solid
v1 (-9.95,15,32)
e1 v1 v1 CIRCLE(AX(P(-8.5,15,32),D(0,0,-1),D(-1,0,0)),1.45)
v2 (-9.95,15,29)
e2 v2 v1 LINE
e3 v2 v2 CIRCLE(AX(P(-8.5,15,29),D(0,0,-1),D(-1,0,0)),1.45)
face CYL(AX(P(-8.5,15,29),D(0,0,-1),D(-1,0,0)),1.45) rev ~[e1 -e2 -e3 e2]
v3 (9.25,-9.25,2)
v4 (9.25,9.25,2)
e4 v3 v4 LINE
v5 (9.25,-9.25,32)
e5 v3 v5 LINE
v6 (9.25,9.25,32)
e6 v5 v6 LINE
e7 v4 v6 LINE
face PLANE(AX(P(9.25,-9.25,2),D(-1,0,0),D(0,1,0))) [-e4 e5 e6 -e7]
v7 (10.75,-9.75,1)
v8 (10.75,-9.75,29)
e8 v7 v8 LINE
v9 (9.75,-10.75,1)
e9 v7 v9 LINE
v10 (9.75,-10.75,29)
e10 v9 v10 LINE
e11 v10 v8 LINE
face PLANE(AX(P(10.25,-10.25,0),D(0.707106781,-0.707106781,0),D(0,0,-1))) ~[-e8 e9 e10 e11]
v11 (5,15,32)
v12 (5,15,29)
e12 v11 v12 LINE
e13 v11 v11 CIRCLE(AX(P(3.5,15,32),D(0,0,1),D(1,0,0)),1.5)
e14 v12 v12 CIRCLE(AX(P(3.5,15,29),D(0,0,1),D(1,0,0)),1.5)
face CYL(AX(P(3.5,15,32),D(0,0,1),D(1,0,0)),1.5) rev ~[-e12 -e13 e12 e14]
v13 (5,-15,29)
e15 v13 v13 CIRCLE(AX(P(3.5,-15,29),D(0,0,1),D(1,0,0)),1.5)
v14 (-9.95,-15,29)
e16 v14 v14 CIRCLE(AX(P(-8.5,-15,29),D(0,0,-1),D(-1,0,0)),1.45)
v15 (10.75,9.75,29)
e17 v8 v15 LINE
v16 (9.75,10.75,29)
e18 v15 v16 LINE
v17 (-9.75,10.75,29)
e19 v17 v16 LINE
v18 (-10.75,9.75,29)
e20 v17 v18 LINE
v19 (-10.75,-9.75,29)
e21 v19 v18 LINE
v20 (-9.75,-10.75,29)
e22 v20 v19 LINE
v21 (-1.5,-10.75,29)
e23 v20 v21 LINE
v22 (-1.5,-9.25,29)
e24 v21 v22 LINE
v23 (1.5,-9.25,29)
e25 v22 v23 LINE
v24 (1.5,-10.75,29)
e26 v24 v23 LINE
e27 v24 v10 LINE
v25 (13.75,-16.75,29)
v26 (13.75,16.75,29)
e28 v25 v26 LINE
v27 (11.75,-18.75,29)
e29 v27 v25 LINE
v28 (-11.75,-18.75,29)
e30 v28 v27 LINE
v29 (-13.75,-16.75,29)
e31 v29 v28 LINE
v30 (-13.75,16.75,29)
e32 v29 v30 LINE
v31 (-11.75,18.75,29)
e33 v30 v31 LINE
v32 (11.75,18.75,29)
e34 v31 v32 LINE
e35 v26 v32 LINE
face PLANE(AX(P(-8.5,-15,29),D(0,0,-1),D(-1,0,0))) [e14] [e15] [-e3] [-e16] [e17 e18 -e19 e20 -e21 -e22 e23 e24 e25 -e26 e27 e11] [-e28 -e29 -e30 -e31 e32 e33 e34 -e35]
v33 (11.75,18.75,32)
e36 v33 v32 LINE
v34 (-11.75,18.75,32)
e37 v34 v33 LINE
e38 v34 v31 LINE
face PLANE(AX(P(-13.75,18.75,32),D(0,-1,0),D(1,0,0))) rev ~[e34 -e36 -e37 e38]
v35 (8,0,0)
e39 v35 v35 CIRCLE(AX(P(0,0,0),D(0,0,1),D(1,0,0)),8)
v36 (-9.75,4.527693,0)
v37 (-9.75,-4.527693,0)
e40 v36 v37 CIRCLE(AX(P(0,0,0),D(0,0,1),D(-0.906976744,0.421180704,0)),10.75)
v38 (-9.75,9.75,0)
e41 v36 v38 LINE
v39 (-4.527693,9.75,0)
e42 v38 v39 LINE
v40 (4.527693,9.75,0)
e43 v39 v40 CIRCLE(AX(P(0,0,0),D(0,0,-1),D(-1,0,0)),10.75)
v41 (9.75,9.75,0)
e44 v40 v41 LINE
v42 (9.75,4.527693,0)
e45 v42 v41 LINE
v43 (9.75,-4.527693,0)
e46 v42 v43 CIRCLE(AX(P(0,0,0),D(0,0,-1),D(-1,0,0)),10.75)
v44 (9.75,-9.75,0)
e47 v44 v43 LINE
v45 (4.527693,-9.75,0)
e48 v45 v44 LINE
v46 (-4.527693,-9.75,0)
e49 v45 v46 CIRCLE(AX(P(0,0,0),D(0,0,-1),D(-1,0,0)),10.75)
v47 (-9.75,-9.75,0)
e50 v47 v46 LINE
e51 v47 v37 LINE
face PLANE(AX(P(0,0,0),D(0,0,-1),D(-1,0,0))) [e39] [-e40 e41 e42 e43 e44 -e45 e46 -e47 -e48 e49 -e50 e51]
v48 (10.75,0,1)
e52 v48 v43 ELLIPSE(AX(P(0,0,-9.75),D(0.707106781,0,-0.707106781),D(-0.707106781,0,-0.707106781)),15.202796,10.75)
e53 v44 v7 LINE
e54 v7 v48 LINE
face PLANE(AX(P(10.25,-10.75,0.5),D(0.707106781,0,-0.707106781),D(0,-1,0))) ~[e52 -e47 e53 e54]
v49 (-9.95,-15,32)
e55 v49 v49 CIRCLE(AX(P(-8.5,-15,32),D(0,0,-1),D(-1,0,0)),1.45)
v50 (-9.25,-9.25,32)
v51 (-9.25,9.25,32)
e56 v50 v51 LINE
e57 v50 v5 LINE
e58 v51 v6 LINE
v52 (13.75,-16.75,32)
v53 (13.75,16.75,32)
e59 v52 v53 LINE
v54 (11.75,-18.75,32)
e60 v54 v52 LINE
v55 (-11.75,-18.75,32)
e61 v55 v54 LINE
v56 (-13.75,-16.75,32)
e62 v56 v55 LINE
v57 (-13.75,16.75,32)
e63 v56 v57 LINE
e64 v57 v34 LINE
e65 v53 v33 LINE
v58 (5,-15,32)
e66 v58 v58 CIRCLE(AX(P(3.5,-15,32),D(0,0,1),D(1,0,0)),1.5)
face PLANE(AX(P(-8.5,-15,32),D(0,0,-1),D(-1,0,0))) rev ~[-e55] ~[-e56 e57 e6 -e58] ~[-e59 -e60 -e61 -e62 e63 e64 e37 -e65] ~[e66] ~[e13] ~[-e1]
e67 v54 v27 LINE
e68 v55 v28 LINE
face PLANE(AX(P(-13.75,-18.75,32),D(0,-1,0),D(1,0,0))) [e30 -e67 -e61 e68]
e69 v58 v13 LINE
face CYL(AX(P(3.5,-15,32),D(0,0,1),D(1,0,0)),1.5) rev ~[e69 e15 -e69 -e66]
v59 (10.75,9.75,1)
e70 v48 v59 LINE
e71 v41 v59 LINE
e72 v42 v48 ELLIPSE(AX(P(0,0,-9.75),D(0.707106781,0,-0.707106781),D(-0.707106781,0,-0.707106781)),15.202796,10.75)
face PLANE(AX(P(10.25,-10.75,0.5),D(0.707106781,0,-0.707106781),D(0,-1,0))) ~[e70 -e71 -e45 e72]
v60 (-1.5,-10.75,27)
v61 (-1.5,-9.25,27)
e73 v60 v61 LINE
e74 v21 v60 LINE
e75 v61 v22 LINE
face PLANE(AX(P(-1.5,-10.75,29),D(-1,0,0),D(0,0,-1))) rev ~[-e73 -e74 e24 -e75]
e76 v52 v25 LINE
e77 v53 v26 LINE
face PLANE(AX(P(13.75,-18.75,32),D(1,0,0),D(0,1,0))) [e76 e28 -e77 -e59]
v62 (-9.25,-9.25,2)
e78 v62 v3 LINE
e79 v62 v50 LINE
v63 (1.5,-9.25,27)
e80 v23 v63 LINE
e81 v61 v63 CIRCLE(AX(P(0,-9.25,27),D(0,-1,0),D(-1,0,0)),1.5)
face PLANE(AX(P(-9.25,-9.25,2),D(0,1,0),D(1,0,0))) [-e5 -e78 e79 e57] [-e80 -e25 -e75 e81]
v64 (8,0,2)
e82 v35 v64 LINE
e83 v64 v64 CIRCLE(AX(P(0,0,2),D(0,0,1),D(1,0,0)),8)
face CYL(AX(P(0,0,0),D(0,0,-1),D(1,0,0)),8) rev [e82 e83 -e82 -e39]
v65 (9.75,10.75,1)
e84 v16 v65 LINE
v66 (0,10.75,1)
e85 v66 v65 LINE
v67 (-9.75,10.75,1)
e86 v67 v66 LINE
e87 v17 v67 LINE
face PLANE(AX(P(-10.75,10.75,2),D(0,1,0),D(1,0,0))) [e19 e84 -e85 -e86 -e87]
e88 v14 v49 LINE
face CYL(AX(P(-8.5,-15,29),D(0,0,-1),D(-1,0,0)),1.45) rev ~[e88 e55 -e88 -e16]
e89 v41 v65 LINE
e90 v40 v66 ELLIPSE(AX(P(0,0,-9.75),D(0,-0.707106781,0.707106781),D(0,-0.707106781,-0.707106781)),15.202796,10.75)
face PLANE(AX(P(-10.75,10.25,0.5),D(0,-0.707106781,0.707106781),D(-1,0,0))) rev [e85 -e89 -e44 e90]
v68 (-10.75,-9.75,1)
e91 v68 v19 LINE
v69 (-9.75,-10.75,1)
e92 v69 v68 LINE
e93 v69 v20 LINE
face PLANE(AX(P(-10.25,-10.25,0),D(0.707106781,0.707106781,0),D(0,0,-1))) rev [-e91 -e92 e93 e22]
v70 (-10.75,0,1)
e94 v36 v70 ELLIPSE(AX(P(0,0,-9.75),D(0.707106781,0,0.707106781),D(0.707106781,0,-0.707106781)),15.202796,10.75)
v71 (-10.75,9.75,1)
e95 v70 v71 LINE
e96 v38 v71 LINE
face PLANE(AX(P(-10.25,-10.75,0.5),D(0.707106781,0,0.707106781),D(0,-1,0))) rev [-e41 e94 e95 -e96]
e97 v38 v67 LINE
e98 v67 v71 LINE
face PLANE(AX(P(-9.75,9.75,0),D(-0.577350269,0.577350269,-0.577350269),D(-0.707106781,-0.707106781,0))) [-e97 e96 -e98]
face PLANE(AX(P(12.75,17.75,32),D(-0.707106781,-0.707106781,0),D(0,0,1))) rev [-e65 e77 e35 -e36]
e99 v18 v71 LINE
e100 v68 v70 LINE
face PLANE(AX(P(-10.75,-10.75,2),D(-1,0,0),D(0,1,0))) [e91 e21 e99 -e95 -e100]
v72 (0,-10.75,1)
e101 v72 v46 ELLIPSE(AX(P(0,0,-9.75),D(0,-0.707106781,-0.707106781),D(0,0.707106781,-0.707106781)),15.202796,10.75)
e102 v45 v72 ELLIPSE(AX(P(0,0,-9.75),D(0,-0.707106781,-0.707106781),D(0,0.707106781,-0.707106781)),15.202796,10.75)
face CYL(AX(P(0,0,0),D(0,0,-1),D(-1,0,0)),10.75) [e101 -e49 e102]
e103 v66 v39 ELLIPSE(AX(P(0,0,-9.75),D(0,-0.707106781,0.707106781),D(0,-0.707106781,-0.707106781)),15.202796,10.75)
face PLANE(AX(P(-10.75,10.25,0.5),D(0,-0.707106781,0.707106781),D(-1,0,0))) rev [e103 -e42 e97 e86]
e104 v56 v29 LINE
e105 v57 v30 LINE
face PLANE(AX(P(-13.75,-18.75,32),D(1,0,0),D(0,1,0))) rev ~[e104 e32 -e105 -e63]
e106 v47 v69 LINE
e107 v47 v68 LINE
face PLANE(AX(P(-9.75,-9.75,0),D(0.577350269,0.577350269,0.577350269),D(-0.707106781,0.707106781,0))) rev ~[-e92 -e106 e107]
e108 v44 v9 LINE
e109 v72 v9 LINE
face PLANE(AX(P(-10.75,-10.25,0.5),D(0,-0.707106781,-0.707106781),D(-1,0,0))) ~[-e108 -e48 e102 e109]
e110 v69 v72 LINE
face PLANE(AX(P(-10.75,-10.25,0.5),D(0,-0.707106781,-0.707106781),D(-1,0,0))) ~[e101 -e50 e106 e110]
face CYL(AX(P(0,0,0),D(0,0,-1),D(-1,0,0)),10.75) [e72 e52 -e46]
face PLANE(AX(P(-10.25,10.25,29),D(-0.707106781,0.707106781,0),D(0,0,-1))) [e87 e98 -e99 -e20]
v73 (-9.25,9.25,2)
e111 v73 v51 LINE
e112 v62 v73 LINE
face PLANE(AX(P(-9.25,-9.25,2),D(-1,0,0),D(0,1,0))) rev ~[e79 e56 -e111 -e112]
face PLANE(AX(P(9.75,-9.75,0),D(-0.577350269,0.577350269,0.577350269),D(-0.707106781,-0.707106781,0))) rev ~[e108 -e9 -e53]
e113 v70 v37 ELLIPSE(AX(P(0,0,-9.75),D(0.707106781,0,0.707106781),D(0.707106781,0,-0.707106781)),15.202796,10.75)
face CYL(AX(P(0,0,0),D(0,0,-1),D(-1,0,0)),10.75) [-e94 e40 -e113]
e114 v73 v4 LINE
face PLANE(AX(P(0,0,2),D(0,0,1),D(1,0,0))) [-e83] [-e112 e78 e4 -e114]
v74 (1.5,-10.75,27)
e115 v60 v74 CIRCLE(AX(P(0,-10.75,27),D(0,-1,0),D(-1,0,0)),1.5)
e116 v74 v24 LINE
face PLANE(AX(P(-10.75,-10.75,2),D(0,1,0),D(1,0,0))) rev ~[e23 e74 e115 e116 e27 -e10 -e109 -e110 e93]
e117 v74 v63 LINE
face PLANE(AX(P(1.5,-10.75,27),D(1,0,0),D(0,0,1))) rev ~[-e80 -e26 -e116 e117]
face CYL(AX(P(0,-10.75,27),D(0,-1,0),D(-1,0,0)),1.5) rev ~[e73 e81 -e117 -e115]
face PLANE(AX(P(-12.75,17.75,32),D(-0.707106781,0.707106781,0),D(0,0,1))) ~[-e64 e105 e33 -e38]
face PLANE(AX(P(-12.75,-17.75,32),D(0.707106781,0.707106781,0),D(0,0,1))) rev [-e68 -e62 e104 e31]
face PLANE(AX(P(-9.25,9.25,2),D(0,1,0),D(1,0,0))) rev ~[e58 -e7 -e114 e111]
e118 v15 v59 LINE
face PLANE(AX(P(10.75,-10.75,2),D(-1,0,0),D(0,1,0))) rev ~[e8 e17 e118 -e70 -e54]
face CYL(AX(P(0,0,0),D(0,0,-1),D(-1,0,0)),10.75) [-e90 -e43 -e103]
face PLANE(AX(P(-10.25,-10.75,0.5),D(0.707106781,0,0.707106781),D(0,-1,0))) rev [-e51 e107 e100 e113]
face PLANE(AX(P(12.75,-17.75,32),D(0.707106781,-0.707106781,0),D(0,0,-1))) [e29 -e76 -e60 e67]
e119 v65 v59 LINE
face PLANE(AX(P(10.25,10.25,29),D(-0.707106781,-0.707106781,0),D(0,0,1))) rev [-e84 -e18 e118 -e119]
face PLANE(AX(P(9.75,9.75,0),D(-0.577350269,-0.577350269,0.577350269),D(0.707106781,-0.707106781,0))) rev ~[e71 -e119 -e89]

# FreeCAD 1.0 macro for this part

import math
import FreeCAD as App
import Part
import Sketcher


def edges_at(feature, points):
    """Names of the edges that pass closest to the given points."""
    edges = feature.Shape.Edges
    near = lambda p: min(range(len(edges)), key=lambda i: edges[i].distToShape(Part.Vertex(*p))[0])
    return sorted({f"Edge{near(p) + 1}" for p in points})

doc = App.newDocument("Part")
params = doc.addObject("Spreadsheet::Sheet", "Params")
for row, (alias, value) in enumerate([
    ("sketch1_diameter", "16 mm"),
    ("sketch1_width", "21.5 mm"),
    ("pad1_length", "2 mm"),
    ("sketch2_width", "21.5 mm"),
    ("sketch2_width2", "18.5 mm"),
    ("pad2_length", "30 mm"),
    ("sketch3_diameter", "3 mm"),
    ("sketch3_width", "27.5 mm"),
    ("sketch3_width2", "21.5 mm"),
    ("sketch3_height", "37.5 mm"),
    ("pad3_length", "3 mm"),
    ("sketch4_radius", "1.5 mm"),
    ("sketch4_height", "2 mm"),
    ("pocket1_length", "3 mm"),
    ("chamfer_size", "1 mm"),
    ("chamfer2_size", "2 mm"),
    ("sketch5_diameter", "3 mm"),
    ("sketch5_diameter2", "2.9 mm"),
    ("pad4_length", "3 mm"),
    ("sketch6_diameter", "16 mm"),
    ("sketch6_diameter2", "21.5 mm"),
    ("pad5_length", "1.5 mm"),
], start=1):
    params.set(f"A{row}", alias)
    params.set(f"B{row}", "=" + value)
    params.setAlias(f"B{row}", alias)

body = doc.addObject("PartDesign::Body", "Body")

sketch1 = doc.addObject("Sketcher::SketchObject", "Sketch")
body.addObject(sketch1)
sketch1.AttachmentSupport = (doc.XY_Plane, [""])
sketch1.MapMode = "FlatFace"
sketch1.addGeometry([
    Part.LineSegment(App.Vector(-11, 11, 0), App.Vector(-11, -11, 0)),
    Part.LineSegment(App.Vector(-11, -11, 0), App.Vector(11, -11, 0)),
    Part.LineSegment(App.Vector(11, -11, 0), App.Vector(11, 11, 0)),
    Part.LineSegment(App.Vector(11, 11, 0), App.Vector(-11, 11, 0)),
    Part.Circle(App.Vector(0, 0, 0), App.Vector(0, 0, 1), 8),
], False)
sketch1.addConstraint([
    Sketcher.Constraint("Coincident", 0, 2, 1, 1),
    Sketcher.Constraint("Coincident", 1, 2, 2, 1),
    Sketcher.Constraint("Coincident", 2, 2, 3, 1),
    Sketcher.Constraint("Coincident", 3, 2, 0, 1),
    Sketcher.Constraint("Vertical", 0),
    Sketcher.Constraint("Horizontal", 1),
    Sketcher.Constraint("Vertical", 2),
    Sketcher.Constraint("Horizontal", 3),
    Sketcher.Constraint("Coincident", 4, 3, -1, 1),
    Sketcher.Constraint("Symmetric", 0, 2, 2, 2, -1, 1),
    Sketcher.Constraint("Equal", 3, 0),
    Sketcher.Constraint("Diameter", 4, 16.0),
    Sketcher.Constraint("DistanceX", 1, 1, 1, 2, 21.5),
])
sketch1.setExpression("Constraints[11]", "Params.sketch1_diameter")
sketch1.setExpression("Constraints[12]", "Params.sketch1_width")
pad1 = doc.addObject("PartDesign::Pad", "Pad")
body.addObject(pad1)
pad1.Profile = sketch1
pad1.setExpression("Length", "Params.pad1_length")

sketch2 = doc.addObject("Sketcher::SketchObject", "Sketch001")
body.addObject(sketch2)
sketch2.AttachmentSupport = (doc.XY_Plane, [""])
sketch2.MapMode = "FlatFace"
sketch2.AttachmentOffset = App.Placement(App.Vector(0, 0, 2), App.Rotation())
sketch2.addGeometry([
    Part.LineSegment(App.Vector(-11, 11, 0), App.Vector(-11, -11, 0)),
    Part.LineSegment(App.Vector(-11, -11, 0), App.Vector(11, -11, 0)),
    Part.LineSegment(App.Vector(11, -11, 0), App.Vector(11, 11, 0)),
    Part.LineSegment(App.Vector(11, 11, 0), App.Vector(-11, 11, 0)),
    Part.LineSegment(App.Vector(9, -9, 0), App.Vector(-9, -9, 0)),
    Part.LineSegment(App.Vector(-9, -9, 0), App.Vector(-9, 9, 0)),
    Part.LineSegment(App.Vector(-9, 9, 0), App.Vector(9, 9, 0)),
    Part.LineSegment(App.Vector(9, 9, 0), App.Vector(9, -9, 0)),
], False)
sketch2.addConstraint([
    Sketcher.Constraint("Coincident", 0, 2, 1, 1),
    Sketcher.Constraint("Coincident", 1, 2, 2, 1),
    Sketcher.Constraint("Coincident", 2, 2, 3, 1),
    Sketcher.Constraint("Coincident", 3, 2, 0, 1),
    Sketcher.Constraint("Coincident", 4, 2, 5, 1),
    Sketcher.Constraint("Coincident", 5, 2, 6, 1),
    Sketcher.Constraint("Coincident", 6, 2, 7, 1),
    Sketcher.Constraint("Coincident", 7, 2, 4, 1),
    Sketcher.Constraint("Vertical", 0),
    Sketcher.Constraint("Horizontal", 1),
    Sketcher.Constraint("Vertical", 2),
    Sketcher.Constraint("Horizontal", 3),
    Sketcher.Constraint("Horizontal", 4),
    Sketcher.Constraint("Vertical", 5),
    Sketcher.Constraint("Horizontal", 6),
    Sketcher.Constraint("Vertical", 7),
    Sketcher.Constraint("Symmetric", 0, 2, 2, 2, -1, 1),
    Sketcher.Constraint("Symmetric", 4, 2, 6, 2, -1, 1),
    Sketcher.Constraint("Equal", 3, 0),
    Sketcher.Constraint("Equal", 6, 5),
    Sketcher.Constraint("DistanceX", 1, 1, 1, 2, 21.5),
    Sketcher.Constraint("DistanceX", 4, 2, 4, 1, 18.5),
])
sketch2.setExpression("Constraints[20]", "Params.sketch2_width")
sketch2.setExpression("Constraints[21]", "Params.sketch2_width2")
pad2 = doc.addObject("PartDesign::Pad", "Pad001")
body.addObject(pad2)
pad2.Profile = sketch2
pad2.setExpression("Length", "Params.pad2_length")

sketch3 = doc.addObject("Sketcher::SketchObject", "Sketch002")
body.addObject(sketch3)
sketch3.AttachmentSupport = (doc.XY_Plane, [""])
sketch3.MapMode = "FlatFace"
sketch3.AttachmentOffset = App.Placement(App.Vector(0, 0, 32), App.Rotation())
sketch3.addGeometry([
    Part.LineSegment(App.Vector(-13.8, 18.8, 0), App.Vector(-13.8, -18.8, 0)),
    Part.LineSegment(App.Vector(-13.8, -18.8, 0), App.Vector(13.8, -18.8, 0)),
    Part.LineSegment(App.Vector(13.8, -18.8, 0), App.Vector(13.8, 18.8, 0)),
    Part.LineSegment(App.Vector(13.8, 18.8, 0), App.Vector(-13.8, 18.8, 0)),
    Part.Circle(App.Vector(-8.5, -15, 0), App.Vector(0, 0, 1), 1.5),
    Part.Circle(App.Vector(3.5, -15, 0), App.Vector(0, 0, 1), 1.5),
    Part.Circle(App.Vector(-8.5, 15, 0), App.Vector(0, 0, 1), 1.5),
    Part.LineSegment(App.Vector(10.8, -10.8, 0), App.Vector(-10.8, -10.8, 0)),
    Part.LineSegment(App.Vector(-10.8, -10.8, 0), App.Vector(-10.8, 10.8, 0)),
    Part.LineSegment(App.Vector(-10.8, 10.8, 0), App.Vector(10.8, 10.8, 0)),
    Part.LineSegment(App.Vector(10.8, 10.8, 0), App.Vector(10.8, -10.8, 0)),
    Part.Circle(App.Vector(3.5, 15, 0), App.Vector(0, 0, 1), 1.5),
], False)
sketch3.addConstraint([
    Sketcher.Constraint("Coincident", 0, 2, 1, 1),
    Sketcher.Constraint("Coincident", 1, 2, 2, 1),
    Sketcher.Constraint("Coincident", 2, 2, 3, 1),
    Sketcher.Constraint("Coincident", 3, 2, 0, 1),
    Sketcher.Constraint("Coincident", 7, 2, 8, 1),
    Sketcher.Constraint("Coincident", 8, 2, 9, 1),
    Sketcher.Constraint("Coincident", 9, 2, 10, 1),
    Sketcher.Constraint("Coincident", 10, 2, 7, 1),
    Sketcher.Constraint("Vertical", 0),
    Sketcher.Constraint("Horizontal", 1),
    Sketcher.Constraint("Vertical", 2),
    Sketcher.Constraint("Horizontal", 3),
    Sketcher.Constraint("Horizontal", 7),
    Sketcher.Constraint("Vertical", 8),
    Sketcher.Constraint("Horizontal", 9),
    Sketcher.Constraint("Vertical", 10),
    Sketcher.Constraint("Equal", 4, 5),
    Sketcher.Constraint("Equal", 5, 6),
    Sketcher.Constraint("Equal", 6, 11),
    Sketcher.Constraint("Symmetric", 0, 2, 2, 2, -1, 1),
    Sketcher.Constraint("Symmetric", 7, 2, 9, 2, -1, 1),
    Sketcher.Constraint("Symmetric", 4, 3, 6, 3, -1),
    Sketcher.Constraint("Symmetric", 5, 3, 11, 3, -1),
    Sketcher.Constraint("Horizontal", 4, 3, 5, 3),
    Sketcher.Constraint("Equal", 9, 8),
    Sketcher.Constraint("Diameter", 4, 3.0),
    Sketcher.Constraint("DistanceX", 1, 1, 1, 2, 27.5),
    Sketcher.Constraint("DistanceX", 7, 2, 7, 1, 21.5),
    Sketcher.Constraint("DistanceY", 0, 2, 0, 1, 37.5),
    Sketcher.Constraint("DistanceY", 4, 3, -1, 1, 15.0),
    Sketcher.Constraint("DistanceX", 4, 3, 5, 3, 12.0),
    Sketcher.Constraint("DistanceX", 4, 3, -1, 1, 8.5),
])
sketch3.setExpression("Constraints[25]", "Params.sketch3_diameter")
sketch3.setExpression("Constraints[26]", "Params.sketch3_width")
sketch3.setExpression("Constraints[27]", "Params.sketch3_width2")
sketch3.setExpression("Constraints[28]", "Params.sketch3_height")
pad3 = doc.addObject("PartDesign::Pad", "Pad002")
body.addObject(pad3)
pad3.Profile = sketch3
pad3.setExpression("Length", "Params.pad3_length")
pad3.Reversed = True

sketch4 = doc.addObject("Sketcher::SketchObject", "Sketch003")
body.addObject(sketch4)
sketch4.AttachmentSupport = (doc.XZ_Plane, [""])
sketch4.MapMode = "FlatFace"
sketch4.AttachmentOffset = App.Placement(App.Vector(0, 0, 10.75), App.Rotation())
sketch4.addGeometry([
    Part.LineSegment(App.Vector(-1.5, 29, 0), App.Vector(-1.5, 27, 0)),
    Part.ArcOfCircle(Part.Circle(App.Vector(0, 27, 0), App.Vector(0, 0, 1), 1.5), math.radians(180), math.radians(360)),
    Part.LineSegment(App.Vector(1.5, 27, 0), App.Vector(1.5, 29, 0)),
    Part.LineSegment(App.Vector(1.5, 29, 0), App.Vector(-1.5, 29, 0)),
], False)
sketch4.addConstraint([
    Sketcher.Constraint("Tangent", 0, 2, 1, 1),
    Sketcher.Constraint("Tangent", 1, 2, 2, 1),
    Sketcher.Constraint("Coincident", 2, 2, 3, 1),
    Sketcher.Constraint("Coincident", 3, 2, 0, 1),
    Sketcher.Constraint("Vertical", 0),
    Sketcher.Constraint("Vertical", 2),
    Sketcher.Constraint("Horizontal", 3),
    Sketcher.Constraint("PointOnObject", 1, 3, -2),
    Sketcher.Constraint("Radius", 1, 1.5),
    Sketcher.Constraint("DistanceY", 0, 2, 0, 1, 2.0),
    Sketcher.Constraint("DistanceY", -1, 1, 1, 3, 27.0),
])
sketch4.setExpression("Constraints[8]", "Params.sketch4_radius")
sketch4.setExpression("Constraints[9]", "Params.sketch4_height")
pocket1 = doc.addObject("PartDesign::Pocket", "Pocket")
body.addObject(pocket1)
pocket1.Profile = sketch4
pocket1.setExpression("Length", "Params.pocket1_length")
doc.recompute()

chamfer = doc.addObject("PartDesign::Chamfer", "Chamfer")
body.addObject(chamfer)
chamfer.Base = (pocket1, edges_at(pocket1, [
    (-10.75, 10.75, 14.5),
    (10.75, 10.75, 14.5),
    (10.75, -10.75, 14.5),
    (-10.75, -10.75, 14.5),
    (0, 10.75, 0),
    (10.75, 0, 0),
    (0, -10.75, 0),
    (-10.75, 0, 0),
]))
chamfer.setExpression("Size", "Params.chamfer_size")
doc.recompute()

chamfer2 = doc.addObject("PartDesign::Chamfer", "Chamfer001")
body.addObject(chamfer2)
chamfer2.Base = (chamfer, edges_at(chamfer, [
    (13.75, 18.75, 30.5),
    (13.75, -18.75, 30.5),
    (-13.75, -18.75, 30.5),
    (-13.75, 18.75, 30.5),
]))
chamfer2.setExpression("Size", "Params.chamfer2_size")

sketch5 = doc.addObject("Sketcher::SketchObject", "Sketch004")
body.addObject(sketch5)
sketch5.AttachmentSupport = (doc.XY_Plane, [""])
sketch5.MapMode = "FlatFace"
sketch5.AttachmentOffset = App.Placement(App.Vector(0, 0, 29), App.Rotation())
sketch5.addGeometry([
    Part.Circle(App.Vector(-8.5, -15, 0), App.Vector(0, 0, 1), 1.5),
    Part.Circle(App.Vector(-8.5, -15, 0), App.Vector(0, 0, 1), 1.4),
    Part.Circle(App.Vector(-8.5, 15, 0), App.Vector(0, 0, 1), 1.5),
    Part.Circle(App.Vector(-8.5, 15, 0), App.Vector(0, 0, 1), 1.4),
], False)
sketch5.addConstraint([
    Sketcher.Constraint("Coincident", 1, 3, 0, 3),
    Sketcher.Constraint("Coincident", 3, 3, 2, 3),
    Sketcher.Constraint("Equal", 0, 2),
    Sketcher.Constraint("Equal", 1, 3),
    Sketcher.Constraint("Symmetric", 0, 3, 2, 3, -1),
    Sketcher.Constraint("Diameter", 0, 3.0),
    Sketcher.Constraint("Diameter", 1, 2.9),
    Sketcher.Constraint("DistanceY", 0, 3, -1, 1, 15.0),
    Sketcher.Constraint("DistanceX", 0, 3, -1, 1, 8.5),
])
sketch5.setExpression("Constraints[5]", "Params.sketch5_diameter")
sketch5.setExpression("Constraints[6]", "Params.sketch5_diameter2")
pad4 = doc.addObject("PartDesign::Pad", "Pad003")
body.addObject(pad4)
pad4.Profile = sketch5
pad4.setExpression("Length", "Params.pad4_length")

sketch6 = doc.addObject("Sketcher::SketchObject", "Sketch005")
body.addObject(sketch6)
sketch6.AttachmentSupport = (doc.XY_Plane, [""])
sketch6.MapMode = "FlatFace"
sketch6.addGeometry([
    Part.Circle(App.Vector(0, 0, 0), App.Vector(0, 0, 1), 11),
    Part.Circle(App.Vector(0, 0, 0), App.Vector(0, 0, 1), 8),
], False)
sketch6.addConstraint([
    Sketcher.Constraint("Coincident", 0, 3, -1, 1),
    Sketcher.Constraint("Coincident", 1, 3, -1, 1),
    Sketcher.Constraint("Diameter", 1, 16.0),
    Sketcher.Constraint("Diameter", 0, 21.5),
])
sketch6.setExpression("Constraints[2]", "Params.sketch6_diameter")
sketch6.setExpression("Constraints[3]", "Params.sketch6_diameter2")
pad5 = doc.addObject("PartDesign::Pad", "Pad004")
body.addObject(pad5)
pad5.Profile = sketch6
pad5.setExpression("Length", "Params.pad5_length")

doc.recompute()
